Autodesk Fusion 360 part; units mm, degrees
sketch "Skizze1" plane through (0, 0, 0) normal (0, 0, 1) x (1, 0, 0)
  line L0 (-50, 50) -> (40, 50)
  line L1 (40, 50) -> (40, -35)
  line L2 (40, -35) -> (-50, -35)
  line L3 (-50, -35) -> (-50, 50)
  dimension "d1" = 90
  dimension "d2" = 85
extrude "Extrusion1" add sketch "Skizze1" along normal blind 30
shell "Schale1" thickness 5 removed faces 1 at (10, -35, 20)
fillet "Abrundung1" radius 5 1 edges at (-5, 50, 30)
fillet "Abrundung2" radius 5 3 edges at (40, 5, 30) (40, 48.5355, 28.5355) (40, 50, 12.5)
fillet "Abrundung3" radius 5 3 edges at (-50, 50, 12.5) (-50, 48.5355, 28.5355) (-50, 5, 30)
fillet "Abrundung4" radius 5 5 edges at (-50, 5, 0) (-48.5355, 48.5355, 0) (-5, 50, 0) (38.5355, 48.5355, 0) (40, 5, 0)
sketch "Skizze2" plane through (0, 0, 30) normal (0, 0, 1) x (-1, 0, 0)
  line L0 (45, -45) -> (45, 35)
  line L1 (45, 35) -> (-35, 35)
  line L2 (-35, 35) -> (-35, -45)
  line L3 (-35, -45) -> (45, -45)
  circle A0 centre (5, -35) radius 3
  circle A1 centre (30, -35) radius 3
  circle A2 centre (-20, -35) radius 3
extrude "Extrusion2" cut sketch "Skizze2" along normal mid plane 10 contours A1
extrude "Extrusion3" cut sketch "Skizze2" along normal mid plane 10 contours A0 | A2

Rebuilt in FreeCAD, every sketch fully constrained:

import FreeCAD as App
import Part
import Sketcher


def edges_at(feature, points):
    """Names of the edges that pass closest to the given points."""
    edges = feature.Shape.Edges
    near = lambda p: min(range(len(edges)), key=lambda i: edges[i].distToShape(Part.Vertex(*p))[0])
    return sorted({f"Edge{near(p) + 1}" for p in points})


def faces_at(feature, points):
    """Names of the faces that lie closest to the given points."""
    faces = feature.Shape.Faces
    near = lambda p: min(range(len(faces)), key=lambda i: faces[i].distToShape(Part.Vertex(*p))[0])
    return sorted({f"Face{near(p) + 1}" for p in points})


def add_polygon(sketch, points):
    """Adds a closed chain of lines whose ends are joined by coincident constraints."""
    first, n = sketch.GeometryCount, len(points)
    for a, b in zip(points, points[1:] + points[:1]):
        sketch.addGeometry(Part.LineSegment(App.Vector(*a, 0), App.Vector(*b, 0)), False)
    for i in range(n):
        sketch.addConstraint(Sketcher.Constraint("Coincident", first + i, 2, first + (i + 1) % n, 1))

doc = App.newDocument("Part")
body = doc.addObject("PartDesign::Body", "Body")

# Sketch on XY plane
sketch1 = body.newObject("Sketcher::SketchObject", "Sketch")
sketch1.AttachmentSupport = (doc.getObject("XY_Plane"), [""])
sketch1.MapMode = "FlatFace"
add_polygon(sketch1, [(40, 50), (-50, 50), (-50, -35), (40, -35)])  # lines 0-3
sketch1.addConstraint([
    Sketcher.Constraint("Horizontal", 0),
    Sketcher.Constraint("Vertical", 1),
    Sketcher.Constraint("Horizontal", 2),
    Sketcher.Constraint("Vertical", 3),
    Sketcher.Constraint("DistanceX", 0, 2, 0, 1, 90.0),
    Sketcher.Constraint("DistanceY", 1, 2, 1, 1, 85.0),
    Sketcher.Constraint("DistanceX", 0, 2, -1, 1, 50.0),
    Sketcher.Constraint("DistanceY", -1, 1, 0, 2, 50.0),
])
pad1 = body.newObject("PartDesign::Pad", "Pad")
pad1.Profile = sketch1
pad1.Length = 30
doc.recompute()

thickness = body.newObject("PartDesign::Thickness", "Thickness")
thickness.Base = (pad1, faces_at(pad1, [(10, -35, 20)]))
thickness.Value = 5
thickness.Reversed = True
thickness.Join = "Intersection"
doc.recompute()

fillet = body.newObject("PartDesign::Fillet", "Fillet")
fillet.Base = (thickness, edges_at(thickness, [(-5, 50, 30)]))
fillet.Radius = 5
doc.recompute()

fillet2 = body.newObject("PartDesign::Fillet", "Fillet001")
fillet2.Base = (fillet, edges_at(fillet, [(40, 5, 30), (40, 48.535, 28.535), (40, 50, 12.5)]))
fillet2.Radius = 5
doc.recompute()

fillet3 = body.newObject("PartDesign::Fillet", "Fillet002")
fillet3.Base = (fillet2, edges_at(fillet2, [(-50, 50, 12.5), (-50, 48.535, 28.535), (-50, 5, 30)]))
fillet3.Radius = 5
doc.recompute()

fillet4 = body.newObject("PartDesign::Fillet", "Fillet003")
fillet4.Base = (fillet3, edges_at(fillet3, [
    (-50, 5, 0),
    (-48.535, 48.535, 0),
    (-5, 50, 0),
    (38.535, 48.535, 0),
    (40, 5, 0),
]))
fillet4.Radius = 5

# Sketch on XY plane
sketch2 = body.newObject("Sketcher::SketchObject", "Sketch001")
sketch2.AttachmentSupport = (doc.getObject("XY_Plane"), [""])
sketch2.MapMode = "FlatFace"
sketch2.AttachmentOffset = App.Placement(App.Vector(0, 0, 30), App.Rotation())
sketch2.addGeometry(Part.Circle(App.Vector(-30, 35, 0), App.Vector(0, 0, 1), 3), False)
sketch2.addConstraint([
    Sketcher.Constraint("Diameter", 0, 6.0),
    Sketcher.Constraint("DistanceX", 0, 3, -1, 1, 30.0),
    Sketcher.Constraint("DistanceY", -1, 1, 0, 3, 35.0),
])
pocket1 = body.newObject("PartDesign::Pocket", "Pocket")
pocket1.Profile = sketch2
pocket1.Length = 10
pocket1.Midplane = True

# Sketch on XY plane
sketch3 = body.newObject("Sketcher::SketchObject", "Sketch002")
sketch3.AttachmentSupport = (doc.getObject("XY_Plane"), [""])
sketch3.MapMode = "FlatFace"
sketch3.AttachmentOffset = App.Placement(App.Vector(0, 0, 30), App.Rotation())
sketch3.addGeometry([
    Part.Circle(App.Vector(-5, 35, 0), App.Vector(0, 0, 1), 3),
    Part.Circle(App.Vector(20, 35, 0), App.Vector(0, 0, 1), 3),
], False)
sketch3.addConstraint([
    Sketcher.Constraint("Equal", 0, 1),
    Sketcher.Constraint("Horizontal", 0, 3, 1, 3),
    Sketcher.Constraint("Diameter", 0, 6.0),
    Sketcher.Constraint("DistanceX", 0, 3, -1, 1, 5.0),
    Sketcher.Constraint("DistanceY", -1, 1, 0, 3, 35.0),
    Sketcher.Constraint("DistanceX", -1, 1, 1, 3, 20.0),
])
pocket2 = body.newObject("PartDesign::Pocket", "Pocket001")
pocket2.Profile = sketch3
pocket2.Length = 10
pocket2.Midplane = True

doc.recompute()
